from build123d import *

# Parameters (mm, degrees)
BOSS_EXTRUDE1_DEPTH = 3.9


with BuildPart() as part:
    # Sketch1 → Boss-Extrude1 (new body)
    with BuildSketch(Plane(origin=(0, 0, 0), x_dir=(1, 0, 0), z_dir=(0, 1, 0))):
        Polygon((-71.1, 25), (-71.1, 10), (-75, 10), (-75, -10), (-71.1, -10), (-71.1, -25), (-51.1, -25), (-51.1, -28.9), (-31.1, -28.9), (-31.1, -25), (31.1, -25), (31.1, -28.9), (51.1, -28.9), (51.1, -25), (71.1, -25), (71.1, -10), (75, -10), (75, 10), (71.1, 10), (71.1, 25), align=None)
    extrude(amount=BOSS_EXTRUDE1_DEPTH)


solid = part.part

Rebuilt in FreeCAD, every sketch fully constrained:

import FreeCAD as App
import Part
import Sketcher

V = App.Vector
Q = App.Units.Quantity

doc = App.newDocument("Part")
params = doc.addObject("Spreadsheet::Sheet", "Params")
for row, (alias, value) in enumerate([
    ("sketch1_width", "20 mm"),
    ("sketch1_height", "15 mm"),
    ("sketch1_width2", "3.9 mm"),
    ("sketch1_width3", "62.2 mm"),
    ("pad1_length", "3.9 mm"),
], start=1):
    params.set(f"A{row}", alias)
    params.set(f"B{row}", "=" + value)
    params.setAlias(f"B{row}", alias)

body = doc.addObject("PartDesign::Body", "Body")

# Sketch on XZ plane
sketch1 = body.newObject("Sketcher::SketchObject", "Sketch")
sketch1.AttachmentSupport = (doc.getObject("XZ_Plane"), [""])
sketch1.MapMode = "FlatFace"
sketch1.addGeometry(Part.LineSegment(V(-71.1, -25, 0), V(-71.1, -10, 0)), False)
sketch1.addGeometry(Part.LineSegment(V(-71.1, -10, 0), V(-75, -10, 0)), False)
sketch1.addGeometry(Part.LineSegment(V(-75, -10, 0), V(-75, 10, 0)), False)
sketch1.addGeometry(Part.LineSegment(V(-75, 10, 0), V(-71.1, 10, 0)), False)
sketch1.addGeometry(Part.LineSegment(V(-71.1, 10, 0), V(-71.1, 25, 0)), False)
sketch1.addGeometry(Part.LineSegment(V(-71.1, 25, 0), V(-51.1, 25, 0)), False)
sketch1.addGeometry(Part.LineSegment(V(-51.1, 25, 0), V(-51.1, 28.9, 0)), False)
sketch1.addGeometry(Part.LineSegment(V(-51.1, 28.9, 0), V(-31.1, 28.9, 0)), False)
sketch1.addGeometry(Part.LineSegment(V(-31.1, 28.9, 0), V(-31.1, 25, 0)), False)
sketch1.addGeometry(Part.LineSegment(V(-31.1, 25, 0), V(31.1, 25, 0)), False)
sketch1.addGeometry(Part.LineSegment(V(31.1, 25, 0), V(31.1, 28.9, 0)), False)
sketch1.addGeometry(Part.LineSegment(V(31.1, 28.9, 0), V(51.1, 28.9, 0)), False)
sketch1.addGeometry(Part.LineSegment(V(51.1, 28.9, 0), V(51.1, 25, 0)), False)
sketch1.addGeometry(Part.LineSegment(V(51.1, 25, 0), V(71.1, 25, 0)), False)
sketch1.addGeometry(Part.LineSegment(V(71.1, 25, 0), V(71.1, 10, 0)), False)
sketch1.addGeometry(Part.LineSegment(V(71.1, 10, 0), V(75, 10, 0)), False)
sketch1.addGeometry(Part.LineSegment(V(75, 10, 0), V(75, -10, 0)), False)
sketch1.addGeometry(Part.LineSegment(V(75, -10, 0), V(71.1, -10, 0)), False)
sketch1.addGeometry(Part.LineSegment(V(71.1, -10, 0), V(71.1, -25, 0)), False)
sketch1.addGeometry(Part.LineSegment(V(71.1, -25, 0), V(-71.1, -25, 0)), False)
sketch1.addConstraint(Sketcher.Constraint("Coincident", 0, 2, 1, 1))
sketch1.addConstraint(Sketcher.Constraint("Coincident", 1, 2, 2, 1))
sketch1.addConstraint(Sketcher.Constraint("Coincident", 2, 2, 3, 1))
sketch1.addConstraint(Sketcher.Constraint("Coincident", 3, 2, 4, 1))
sketch1.addConstraint(Sketcher.Constraint("Coincident", 4, 2, 5, 1))
sketch1.addConstraint(Sketcher.Constraint("Coincident", 5, 2, 6, 1))
sketch1.addConstraint(Sketcher.Constraint("Coincident", 6, 2, 7, 1))
sketch1.addConstraint(Sketcher.Constraint("Coincident", 7, 2, 8, 1))
sketch1.addConstraint(Sketcher.Constraint("Coincident", 8, 2, 9, 1))
sketch1.addConstraint(Sketcher.Constraint("Coincident", 9, 2, 10, 1))
sketch1.addConstraint(Sketcher.Constraint("Coincident", 10, 2, 11, 1))
sketch1.addConstraint(Sketcher.Constraint("Coincident", 11, 2, 12, 1))
sketch1.addConstraint(Sketcher.Constraint("Coincident", 12, 2, 13, 1))
sketch1.addConstraint(Sketcher.Constraint("Coincident", 13, 2, 14, 1))
sketch1.addConstraint(Sketcher.Constraint("Coincident", 14, 2, 15, 1))
sketch1.addConstraint(Sketcher.Constraint("Coincident", 15, 2, 16, 1))
sketch1.addConstraint(Sketcher.Constraint("Coincident", 16, 2, 17, 1))
sketch1.addConstraint(Sketcher.Constraint("Coincident", 17, 2, 18, 1))
sketch1.addConstraint(Sketcher.Constraint("Coincident", 18, 2, 19, 1))
sketch1.addConstraint(Sketcher.Constraint("Coincident", 19, 2, 0, 1))
sketch1.addConstraint(Sketcher.Constraint("Vertical", 0))
sketch1.addConstraint(Sketcher.Constraint("Horizontal", 1))
sketch1.addConstraint(Sketcher.Constraint("Vertical", 2))
sketch1.addConstraint(Sketcher.Constraint("Horizontal", 3))
sketch1.addConstraint(Sketcher.Constraint("Vertical", 4))
sketch1.addConstraint(Sketcher.Constraint("Horizontal", 5))
sketch1.addConstraint(Sketcher.Constraint("Vertical", 6))
sketch1.addConstraint(Sketcher.Constraint("Horizontal", 7))
sketch1.addConstraint(Sketcher.Constraint("Vertical", 8))
sketch1.addConstraint(Sketcher.Constraint("Horizontal", 9))
sketch1.addConstraint(Sketcher.Constraint("Vertical", 10))
sketch1.addConstraint(Sketcher.Constraint("Horizontal", 11))
sketch1.addConstraint(Sketcher.Constraint("Vertical", 12))
sketch1.addConstraint(Sketcher.Constraint("Horizontal", 13))
sketch1.addConstraint(Sketcher.Constraint("Vertical", 14))
sketch1.addConstraint(Sketcher.Constraint("Horizontal", 15))
sketch1.addConstraint(Sketcher.Constraint("Vertical", 16))
sketch1.addConstraint(Sketcher.Constraint("Horizontal", 17))
sketch1.addConstraint(Sketcher.Constraint("Vertical", 18))
sketch1.addConstraint(Sketcher.Constraint("Horizontal", 19))
sketch1.addConstraint(Sketcher.Constraint("Symmetric", 0, 2, 14, 2, -1, 1))
sketch1.addConstraint(Sketcher.Constraint("Symmetric", 2, 2, 16, 2, -1, 1))
sketch1.addConstraint(Sketcher.Constraint("Symmetric", 4, 2, 18, 2, -1, 1))
sketch1.addConstraint(Sketcher.Constraint("Symmetric", 7, 2, 10, 2, -2))
sketch1.addConstraint(Sketcher.Constraint("Symmetric", 5, 2, 12, 2, -2))
sketch1.addConstraint(Sketcher.Constraint("Symmetric", 3, 2, 14, 2, -2))
sketch1.addConstraint(Sketcher.Constraint("Horizontal", 5, 2, 8, 2))
sketch1.addConstraint(Sketcher.Constraint("Equal", 5, 7))
sketch1.addConstraint(Sketcher.Constraint("Equal", 13, 2))
sketch1.addConstraint(Sketcher.Constraint("Equal", 17, 6))
sketch1.addConstraint(Sketcher.Constraint("DistanceX", 5, 1, 5, 2, Q("20 mm")))
sketch1.addConstraint(Sketcher.Constraint("DistanceY", 0, 1, 0, 2, Q("15 mm")))
sketch1.addConstraint(Sketcher.Constraint("DistanceX", 1, 2, 1, 1, Q("3.9 mm")))
sketch1.addConstraint(Sketcher.Constraint("DistanceX", 9, 1, 9, 2, Q("62.2 mm")))
sketch1.setExpression("Constraints[50]", "Params.sketch1_width")
sketch1.setExpression("Constraints[51]", "Params.sketch1_height")
sketch1.setExpression("Constraints[52]", "Params.sketch1_width2")
sketch1.setExpression("Constraints[53]", "Params.sketch1_width3")
pad1 = body.newObject("PartDesign::Pad", "Pad")
pad1.Profile = sketch1
pad1.setExpression("Length", "Params.pad1_length")
pad1.Reversed = True

doc.recompute()
